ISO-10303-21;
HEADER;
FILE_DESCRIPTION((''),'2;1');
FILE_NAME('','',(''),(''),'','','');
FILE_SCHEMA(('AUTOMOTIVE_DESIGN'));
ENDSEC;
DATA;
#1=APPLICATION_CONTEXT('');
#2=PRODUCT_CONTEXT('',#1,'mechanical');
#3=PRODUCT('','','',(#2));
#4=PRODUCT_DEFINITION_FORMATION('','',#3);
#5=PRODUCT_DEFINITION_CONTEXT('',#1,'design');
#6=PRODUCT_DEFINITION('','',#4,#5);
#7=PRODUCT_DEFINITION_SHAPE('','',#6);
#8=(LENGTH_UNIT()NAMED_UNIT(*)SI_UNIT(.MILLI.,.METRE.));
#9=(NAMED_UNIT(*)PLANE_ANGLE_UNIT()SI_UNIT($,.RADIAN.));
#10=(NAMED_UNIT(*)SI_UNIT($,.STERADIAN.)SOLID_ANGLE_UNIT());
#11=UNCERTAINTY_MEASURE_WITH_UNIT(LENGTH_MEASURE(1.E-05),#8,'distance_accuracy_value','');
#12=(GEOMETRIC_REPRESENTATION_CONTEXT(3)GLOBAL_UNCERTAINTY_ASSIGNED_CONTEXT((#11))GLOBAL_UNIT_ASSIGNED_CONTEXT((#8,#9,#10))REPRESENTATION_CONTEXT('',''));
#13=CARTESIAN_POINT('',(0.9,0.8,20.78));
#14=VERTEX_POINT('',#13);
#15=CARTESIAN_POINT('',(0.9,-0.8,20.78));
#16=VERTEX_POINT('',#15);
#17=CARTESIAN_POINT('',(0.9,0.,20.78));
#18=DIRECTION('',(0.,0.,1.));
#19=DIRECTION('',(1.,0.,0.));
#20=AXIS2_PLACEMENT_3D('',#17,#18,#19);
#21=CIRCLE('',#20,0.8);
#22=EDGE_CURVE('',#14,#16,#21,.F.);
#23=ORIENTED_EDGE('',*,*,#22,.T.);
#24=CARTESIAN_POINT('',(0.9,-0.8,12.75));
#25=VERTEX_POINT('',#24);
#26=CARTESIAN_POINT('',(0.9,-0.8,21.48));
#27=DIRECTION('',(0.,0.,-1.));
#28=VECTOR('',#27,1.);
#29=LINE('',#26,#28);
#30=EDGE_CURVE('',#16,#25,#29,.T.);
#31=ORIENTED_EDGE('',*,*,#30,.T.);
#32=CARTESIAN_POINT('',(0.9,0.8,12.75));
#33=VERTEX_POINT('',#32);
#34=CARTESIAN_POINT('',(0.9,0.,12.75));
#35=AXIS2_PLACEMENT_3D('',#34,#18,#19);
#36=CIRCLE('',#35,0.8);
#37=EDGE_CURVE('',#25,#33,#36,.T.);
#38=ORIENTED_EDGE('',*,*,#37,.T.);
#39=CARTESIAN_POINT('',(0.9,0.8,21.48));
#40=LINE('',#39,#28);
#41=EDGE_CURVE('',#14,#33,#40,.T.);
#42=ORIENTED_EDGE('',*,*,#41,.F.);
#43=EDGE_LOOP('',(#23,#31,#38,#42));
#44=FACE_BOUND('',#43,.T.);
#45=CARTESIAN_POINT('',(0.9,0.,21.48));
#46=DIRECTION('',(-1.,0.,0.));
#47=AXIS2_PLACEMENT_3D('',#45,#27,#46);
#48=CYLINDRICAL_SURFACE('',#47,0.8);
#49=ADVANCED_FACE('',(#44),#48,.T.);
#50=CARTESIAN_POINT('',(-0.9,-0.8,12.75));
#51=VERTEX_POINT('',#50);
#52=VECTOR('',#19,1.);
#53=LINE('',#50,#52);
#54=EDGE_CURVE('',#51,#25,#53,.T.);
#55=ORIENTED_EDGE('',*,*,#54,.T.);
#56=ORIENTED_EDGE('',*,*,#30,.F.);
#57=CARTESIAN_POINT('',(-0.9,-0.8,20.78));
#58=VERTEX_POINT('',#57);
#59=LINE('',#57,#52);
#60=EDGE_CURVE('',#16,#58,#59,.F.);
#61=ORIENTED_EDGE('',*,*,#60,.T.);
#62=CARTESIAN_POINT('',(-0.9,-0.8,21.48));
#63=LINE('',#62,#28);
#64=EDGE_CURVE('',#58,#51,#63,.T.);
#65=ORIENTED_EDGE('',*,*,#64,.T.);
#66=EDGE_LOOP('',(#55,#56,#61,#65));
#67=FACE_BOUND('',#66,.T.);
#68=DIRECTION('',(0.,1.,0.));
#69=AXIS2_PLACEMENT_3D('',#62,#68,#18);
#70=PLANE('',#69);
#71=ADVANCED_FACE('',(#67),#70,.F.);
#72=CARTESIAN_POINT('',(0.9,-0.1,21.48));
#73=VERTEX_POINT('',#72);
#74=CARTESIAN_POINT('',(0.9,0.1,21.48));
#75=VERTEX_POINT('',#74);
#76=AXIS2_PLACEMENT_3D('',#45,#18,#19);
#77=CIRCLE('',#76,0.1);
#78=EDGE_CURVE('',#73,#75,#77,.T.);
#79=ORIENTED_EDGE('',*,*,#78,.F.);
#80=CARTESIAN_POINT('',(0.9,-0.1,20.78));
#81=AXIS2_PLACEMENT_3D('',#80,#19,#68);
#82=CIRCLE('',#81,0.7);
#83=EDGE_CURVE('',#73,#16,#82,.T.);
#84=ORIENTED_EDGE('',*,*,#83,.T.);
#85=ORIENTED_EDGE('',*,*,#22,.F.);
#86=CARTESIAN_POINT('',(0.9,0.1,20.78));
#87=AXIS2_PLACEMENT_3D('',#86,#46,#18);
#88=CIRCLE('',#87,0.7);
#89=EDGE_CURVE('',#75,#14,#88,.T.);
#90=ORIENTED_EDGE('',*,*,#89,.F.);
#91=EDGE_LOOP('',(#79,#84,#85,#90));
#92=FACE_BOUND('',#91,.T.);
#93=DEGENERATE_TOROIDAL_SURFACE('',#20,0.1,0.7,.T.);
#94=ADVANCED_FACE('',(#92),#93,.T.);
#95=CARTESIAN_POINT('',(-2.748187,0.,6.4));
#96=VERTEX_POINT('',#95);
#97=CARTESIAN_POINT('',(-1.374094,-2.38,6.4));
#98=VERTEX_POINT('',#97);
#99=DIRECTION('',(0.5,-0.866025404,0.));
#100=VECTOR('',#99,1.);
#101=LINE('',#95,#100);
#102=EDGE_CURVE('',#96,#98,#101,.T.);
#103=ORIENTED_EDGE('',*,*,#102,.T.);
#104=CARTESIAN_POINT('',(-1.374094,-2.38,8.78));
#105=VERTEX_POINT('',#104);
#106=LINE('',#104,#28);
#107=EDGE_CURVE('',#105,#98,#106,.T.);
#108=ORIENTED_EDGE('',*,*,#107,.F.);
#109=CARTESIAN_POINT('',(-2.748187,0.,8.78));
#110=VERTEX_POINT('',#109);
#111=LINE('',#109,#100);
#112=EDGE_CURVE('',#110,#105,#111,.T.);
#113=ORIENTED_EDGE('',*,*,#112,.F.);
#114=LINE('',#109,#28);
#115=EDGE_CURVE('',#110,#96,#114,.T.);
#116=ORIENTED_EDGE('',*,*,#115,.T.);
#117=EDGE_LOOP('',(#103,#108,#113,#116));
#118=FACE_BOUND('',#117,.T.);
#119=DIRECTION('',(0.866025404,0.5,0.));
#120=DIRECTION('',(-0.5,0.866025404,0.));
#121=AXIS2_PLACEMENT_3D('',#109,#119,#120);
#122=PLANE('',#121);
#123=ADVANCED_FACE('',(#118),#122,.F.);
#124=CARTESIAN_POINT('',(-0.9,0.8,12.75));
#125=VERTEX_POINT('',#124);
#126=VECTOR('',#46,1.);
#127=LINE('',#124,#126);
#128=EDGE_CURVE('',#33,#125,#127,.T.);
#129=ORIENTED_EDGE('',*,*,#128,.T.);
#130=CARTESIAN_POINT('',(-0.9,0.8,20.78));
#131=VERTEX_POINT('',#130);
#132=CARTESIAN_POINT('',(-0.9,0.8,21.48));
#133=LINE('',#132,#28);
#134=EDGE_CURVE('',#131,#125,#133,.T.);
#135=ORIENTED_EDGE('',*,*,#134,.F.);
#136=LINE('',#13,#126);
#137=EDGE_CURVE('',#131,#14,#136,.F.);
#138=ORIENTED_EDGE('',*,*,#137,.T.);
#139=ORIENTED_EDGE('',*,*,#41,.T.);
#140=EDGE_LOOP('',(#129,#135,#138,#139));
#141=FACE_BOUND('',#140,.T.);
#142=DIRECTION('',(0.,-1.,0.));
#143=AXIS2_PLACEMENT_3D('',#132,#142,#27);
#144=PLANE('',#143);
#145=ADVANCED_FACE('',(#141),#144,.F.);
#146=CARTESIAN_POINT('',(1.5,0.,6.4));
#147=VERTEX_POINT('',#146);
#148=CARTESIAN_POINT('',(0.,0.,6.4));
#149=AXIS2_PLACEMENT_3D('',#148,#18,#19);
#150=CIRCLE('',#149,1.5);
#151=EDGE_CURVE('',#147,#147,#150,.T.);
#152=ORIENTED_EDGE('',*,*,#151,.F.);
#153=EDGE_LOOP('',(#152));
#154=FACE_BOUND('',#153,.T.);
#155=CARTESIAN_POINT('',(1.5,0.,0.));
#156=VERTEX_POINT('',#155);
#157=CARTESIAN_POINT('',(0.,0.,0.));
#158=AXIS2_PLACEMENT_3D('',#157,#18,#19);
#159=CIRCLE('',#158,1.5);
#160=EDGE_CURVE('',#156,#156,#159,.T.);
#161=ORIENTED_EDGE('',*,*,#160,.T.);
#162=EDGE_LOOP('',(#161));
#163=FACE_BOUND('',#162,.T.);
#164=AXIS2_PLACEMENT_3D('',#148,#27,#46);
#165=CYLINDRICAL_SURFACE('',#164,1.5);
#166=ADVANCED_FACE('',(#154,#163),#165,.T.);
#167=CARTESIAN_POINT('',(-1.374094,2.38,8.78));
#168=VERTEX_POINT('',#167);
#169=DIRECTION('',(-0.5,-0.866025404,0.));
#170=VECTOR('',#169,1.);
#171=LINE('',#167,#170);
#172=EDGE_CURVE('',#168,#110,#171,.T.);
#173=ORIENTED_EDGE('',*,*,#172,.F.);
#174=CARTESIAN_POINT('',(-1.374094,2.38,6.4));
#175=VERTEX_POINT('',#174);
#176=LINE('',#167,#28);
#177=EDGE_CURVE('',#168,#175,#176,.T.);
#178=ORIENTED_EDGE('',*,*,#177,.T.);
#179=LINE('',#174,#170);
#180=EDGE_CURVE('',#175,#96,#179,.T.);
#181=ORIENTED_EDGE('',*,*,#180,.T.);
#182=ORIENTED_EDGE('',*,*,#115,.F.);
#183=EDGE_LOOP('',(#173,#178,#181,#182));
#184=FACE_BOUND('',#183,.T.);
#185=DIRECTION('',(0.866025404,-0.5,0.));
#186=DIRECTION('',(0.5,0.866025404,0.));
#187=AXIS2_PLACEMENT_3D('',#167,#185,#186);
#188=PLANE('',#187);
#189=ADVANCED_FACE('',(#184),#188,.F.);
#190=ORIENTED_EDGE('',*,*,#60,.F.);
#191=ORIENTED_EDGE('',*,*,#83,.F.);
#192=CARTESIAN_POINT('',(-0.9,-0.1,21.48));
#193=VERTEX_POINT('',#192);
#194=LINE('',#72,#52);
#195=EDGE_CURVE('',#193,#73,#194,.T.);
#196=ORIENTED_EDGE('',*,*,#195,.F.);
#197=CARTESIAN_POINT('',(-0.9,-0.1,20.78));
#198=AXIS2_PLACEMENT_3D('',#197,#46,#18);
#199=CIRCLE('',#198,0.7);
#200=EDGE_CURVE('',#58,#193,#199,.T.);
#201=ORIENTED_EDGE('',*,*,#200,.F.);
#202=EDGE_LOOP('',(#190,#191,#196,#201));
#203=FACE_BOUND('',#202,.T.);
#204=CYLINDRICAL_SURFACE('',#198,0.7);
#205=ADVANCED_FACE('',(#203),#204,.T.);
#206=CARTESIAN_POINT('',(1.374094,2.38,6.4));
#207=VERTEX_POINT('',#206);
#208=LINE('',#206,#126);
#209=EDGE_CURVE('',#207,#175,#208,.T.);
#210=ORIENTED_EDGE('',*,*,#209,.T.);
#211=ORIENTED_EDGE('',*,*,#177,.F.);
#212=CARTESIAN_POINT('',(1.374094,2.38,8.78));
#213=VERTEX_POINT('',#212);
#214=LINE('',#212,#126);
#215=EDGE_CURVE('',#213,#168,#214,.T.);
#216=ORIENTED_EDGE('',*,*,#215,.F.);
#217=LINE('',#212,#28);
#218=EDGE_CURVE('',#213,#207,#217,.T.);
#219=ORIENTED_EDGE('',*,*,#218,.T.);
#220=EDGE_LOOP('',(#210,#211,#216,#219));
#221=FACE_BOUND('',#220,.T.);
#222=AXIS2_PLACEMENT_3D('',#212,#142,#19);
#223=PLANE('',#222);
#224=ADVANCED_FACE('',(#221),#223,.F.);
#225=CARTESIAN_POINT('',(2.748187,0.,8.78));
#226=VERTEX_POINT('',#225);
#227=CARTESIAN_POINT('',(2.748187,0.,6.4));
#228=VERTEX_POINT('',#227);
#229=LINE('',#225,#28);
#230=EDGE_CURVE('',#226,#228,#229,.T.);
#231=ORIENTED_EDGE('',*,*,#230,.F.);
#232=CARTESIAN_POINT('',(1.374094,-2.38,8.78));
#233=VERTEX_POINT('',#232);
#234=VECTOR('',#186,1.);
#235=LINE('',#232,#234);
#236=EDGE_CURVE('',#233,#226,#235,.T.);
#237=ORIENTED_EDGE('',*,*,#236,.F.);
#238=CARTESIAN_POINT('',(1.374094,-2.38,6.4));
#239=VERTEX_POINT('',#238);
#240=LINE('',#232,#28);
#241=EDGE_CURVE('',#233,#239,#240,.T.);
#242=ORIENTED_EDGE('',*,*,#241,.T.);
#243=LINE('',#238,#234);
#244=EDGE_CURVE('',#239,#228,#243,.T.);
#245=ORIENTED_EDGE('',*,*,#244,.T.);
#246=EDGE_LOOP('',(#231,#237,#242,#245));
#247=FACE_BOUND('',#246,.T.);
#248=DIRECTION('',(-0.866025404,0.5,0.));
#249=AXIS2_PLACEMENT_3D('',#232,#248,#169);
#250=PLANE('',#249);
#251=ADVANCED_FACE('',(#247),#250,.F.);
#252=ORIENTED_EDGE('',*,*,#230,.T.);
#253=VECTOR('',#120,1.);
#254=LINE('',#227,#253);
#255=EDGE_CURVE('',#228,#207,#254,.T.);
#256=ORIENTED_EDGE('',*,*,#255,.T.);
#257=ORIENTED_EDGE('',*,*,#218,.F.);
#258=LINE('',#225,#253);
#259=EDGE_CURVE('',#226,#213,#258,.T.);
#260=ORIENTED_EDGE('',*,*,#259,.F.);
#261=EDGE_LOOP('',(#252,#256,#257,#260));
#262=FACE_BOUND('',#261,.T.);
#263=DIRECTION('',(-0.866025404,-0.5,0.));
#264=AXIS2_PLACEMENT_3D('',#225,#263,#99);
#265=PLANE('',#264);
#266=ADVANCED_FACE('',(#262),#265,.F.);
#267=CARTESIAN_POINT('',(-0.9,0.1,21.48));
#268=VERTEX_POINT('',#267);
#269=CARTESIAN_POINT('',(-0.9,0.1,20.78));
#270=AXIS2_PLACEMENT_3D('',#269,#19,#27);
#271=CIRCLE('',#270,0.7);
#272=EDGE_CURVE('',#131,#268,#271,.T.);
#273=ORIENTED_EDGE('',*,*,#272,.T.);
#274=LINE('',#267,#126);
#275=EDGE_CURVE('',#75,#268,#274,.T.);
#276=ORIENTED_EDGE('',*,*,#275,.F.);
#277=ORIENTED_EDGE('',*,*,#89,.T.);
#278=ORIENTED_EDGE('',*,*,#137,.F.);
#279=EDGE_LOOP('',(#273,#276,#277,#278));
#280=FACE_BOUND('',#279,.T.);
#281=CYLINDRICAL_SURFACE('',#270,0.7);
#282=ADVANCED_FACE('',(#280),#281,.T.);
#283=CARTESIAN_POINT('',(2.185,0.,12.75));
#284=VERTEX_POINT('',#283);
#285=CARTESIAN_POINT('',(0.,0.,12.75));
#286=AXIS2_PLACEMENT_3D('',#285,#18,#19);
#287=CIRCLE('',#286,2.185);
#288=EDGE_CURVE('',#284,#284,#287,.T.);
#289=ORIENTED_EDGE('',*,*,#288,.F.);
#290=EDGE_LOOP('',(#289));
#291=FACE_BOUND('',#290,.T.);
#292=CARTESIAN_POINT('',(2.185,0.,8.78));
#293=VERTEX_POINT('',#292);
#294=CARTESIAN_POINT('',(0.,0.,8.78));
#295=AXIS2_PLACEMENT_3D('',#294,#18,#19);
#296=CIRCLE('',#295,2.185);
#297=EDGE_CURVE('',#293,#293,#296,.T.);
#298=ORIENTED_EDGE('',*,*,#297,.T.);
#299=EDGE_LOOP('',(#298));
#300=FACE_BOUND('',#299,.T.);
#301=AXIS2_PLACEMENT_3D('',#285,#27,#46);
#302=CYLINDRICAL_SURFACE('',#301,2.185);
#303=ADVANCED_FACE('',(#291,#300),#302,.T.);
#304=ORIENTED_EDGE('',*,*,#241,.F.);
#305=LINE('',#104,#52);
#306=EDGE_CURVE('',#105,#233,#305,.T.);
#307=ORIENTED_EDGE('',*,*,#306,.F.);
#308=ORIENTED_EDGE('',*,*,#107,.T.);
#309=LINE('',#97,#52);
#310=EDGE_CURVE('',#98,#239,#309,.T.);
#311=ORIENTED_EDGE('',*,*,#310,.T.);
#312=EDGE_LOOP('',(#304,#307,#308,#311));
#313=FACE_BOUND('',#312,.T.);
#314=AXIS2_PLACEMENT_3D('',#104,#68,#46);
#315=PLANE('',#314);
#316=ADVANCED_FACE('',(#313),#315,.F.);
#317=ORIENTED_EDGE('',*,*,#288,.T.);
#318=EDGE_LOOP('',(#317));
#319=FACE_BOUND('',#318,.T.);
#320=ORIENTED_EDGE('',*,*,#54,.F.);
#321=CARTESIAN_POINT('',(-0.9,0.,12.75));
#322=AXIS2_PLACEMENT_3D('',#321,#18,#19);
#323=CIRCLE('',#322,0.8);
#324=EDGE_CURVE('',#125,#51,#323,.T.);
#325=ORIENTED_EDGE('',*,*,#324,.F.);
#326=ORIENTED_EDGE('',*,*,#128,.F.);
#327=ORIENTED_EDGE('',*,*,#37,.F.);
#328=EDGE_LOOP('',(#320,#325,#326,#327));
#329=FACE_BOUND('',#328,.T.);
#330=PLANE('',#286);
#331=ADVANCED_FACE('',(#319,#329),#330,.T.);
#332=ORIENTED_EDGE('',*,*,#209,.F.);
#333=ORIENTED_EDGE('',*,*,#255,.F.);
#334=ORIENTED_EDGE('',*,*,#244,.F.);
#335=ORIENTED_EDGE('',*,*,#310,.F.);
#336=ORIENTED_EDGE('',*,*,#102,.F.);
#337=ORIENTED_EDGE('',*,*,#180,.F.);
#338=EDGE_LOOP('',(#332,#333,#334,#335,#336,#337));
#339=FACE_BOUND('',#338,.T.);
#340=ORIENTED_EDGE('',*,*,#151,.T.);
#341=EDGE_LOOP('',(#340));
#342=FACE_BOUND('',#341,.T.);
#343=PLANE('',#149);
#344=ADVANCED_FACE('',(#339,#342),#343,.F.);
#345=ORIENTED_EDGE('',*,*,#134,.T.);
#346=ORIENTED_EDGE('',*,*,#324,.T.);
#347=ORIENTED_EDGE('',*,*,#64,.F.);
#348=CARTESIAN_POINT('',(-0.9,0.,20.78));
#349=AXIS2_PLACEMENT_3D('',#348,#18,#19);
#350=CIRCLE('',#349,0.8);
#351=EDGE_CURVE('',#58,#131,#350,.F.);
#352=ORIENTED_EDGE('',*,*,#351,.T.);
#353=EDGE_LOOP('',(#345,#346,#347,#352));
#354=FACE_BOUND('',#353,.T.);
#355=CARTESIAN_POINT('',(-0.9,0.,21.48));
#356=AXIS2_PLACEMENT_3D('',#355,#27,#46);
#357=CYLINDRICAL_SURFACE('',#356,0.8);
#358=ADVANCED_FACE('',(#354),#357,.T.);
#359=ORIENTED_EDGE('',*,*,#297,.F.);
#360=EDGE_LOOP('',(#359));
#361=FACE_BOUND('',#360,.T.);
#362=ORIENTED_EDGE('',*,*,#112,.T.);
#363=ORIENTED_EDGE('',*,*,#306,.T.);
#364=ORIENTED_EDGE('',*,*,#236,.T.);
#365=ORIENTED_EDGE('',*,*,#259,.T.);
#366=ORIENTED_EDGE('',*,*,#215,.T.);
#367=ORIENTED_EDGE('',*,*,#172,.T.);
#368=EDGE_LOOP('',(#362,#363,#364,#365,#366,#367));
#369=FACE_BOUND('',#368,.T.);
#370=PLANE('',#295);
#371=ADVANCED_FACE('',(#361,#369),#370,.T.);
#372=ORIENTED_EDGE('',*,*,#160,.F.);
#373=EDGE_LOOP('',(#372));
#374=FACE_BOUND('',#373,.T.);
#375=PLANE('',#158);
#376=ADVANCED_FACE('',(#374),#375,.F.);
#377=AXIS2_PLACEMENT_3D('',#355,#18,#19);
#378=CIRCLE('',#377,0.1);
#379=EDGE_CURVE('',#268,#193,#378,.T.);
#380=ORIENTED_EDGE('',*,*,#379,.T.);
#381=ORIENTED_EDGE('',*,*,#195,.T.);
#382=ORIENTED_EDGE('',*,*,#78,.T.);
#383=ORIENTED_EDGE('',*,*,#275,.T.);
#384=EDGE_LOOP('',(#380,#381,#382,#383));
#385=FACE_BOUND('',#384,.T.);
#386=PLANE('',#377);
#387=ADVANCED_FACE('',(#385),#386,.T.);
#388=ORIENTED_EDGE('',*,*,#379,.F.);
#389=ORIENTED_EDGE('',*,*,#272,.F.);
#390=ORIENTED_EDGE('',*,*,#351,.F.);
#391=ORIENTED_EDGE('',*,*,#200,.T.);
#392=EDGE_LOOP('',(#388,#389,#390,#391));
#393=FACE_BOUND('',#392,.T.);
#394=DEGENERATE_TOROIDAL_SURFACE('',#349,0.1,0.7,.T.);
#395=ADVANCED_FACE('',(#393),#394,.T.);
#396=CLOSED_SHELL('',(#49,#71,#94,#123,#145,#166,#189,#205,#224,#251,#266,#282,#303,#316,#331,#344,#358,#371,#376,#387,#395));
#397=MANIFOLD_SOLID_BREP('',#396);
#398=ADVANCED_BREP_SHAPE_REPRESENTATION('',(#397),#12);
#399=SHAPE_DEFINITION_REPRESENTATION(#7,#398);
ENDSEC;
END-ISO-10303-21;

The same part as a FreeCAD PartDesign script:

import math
import FreeCAD as App
import Part
import Sketcher
Q = App.Units.Quantity


def edges_at(feature, points):
    """Names of the edges that pass closest to the given points."""
    edges = feature.Shape.Edges
    near = lambda p: min(range(len(edges)), key=lambda i: edges[i].distToShape(Part.Vertex(*p))[0])
    return sorted({f"Edge{near(p) + 1}" for p in points})

doc = App.newDocument("Part")
params = doc.addObject("Spreadsheet::Sheet", "Params")
for row, (alias, value) in enumerate([
    ("sketch1_diameter", "3 mm"),
    ("pad1_length", "6.4 mm"),
    ("pad2_length", "2.38 mm"),
    ("sketch3_diameter", "4.37 mm"),
    ("pad3_length", "3.97 mm"),
    ("sketch4_radius", "0.8 mm"),
    ("sketch4_width", "1.8 mm"),
    ("pad4_length", "8.73 mm"),
    ("fillet_radius", "0.7 mm"),
], start=1):
    params.set(f"A{row}", alias)
    params.set(f"B{row}", "=" + value)
    params.setAlias(f"B{row}", alias)

body = doc.addObject("PartDesign::Body", "Body")

# Sketch on XY plane
sketch1 = body.newObject("Sketcher::SketchObject", "Sketch")
sketch1.AttachmentSupport = (doc.getObject("XY_Plane"), [""])
sketch1.MapMode = "FlatFace"
sketch1.addGeometry(Part.Circle(App.Vector(0, 0, 0), App.Vector(0, 0, 1), 1.5), False)
sketch1.addConstraint([
    Sketcher.Constraint("Coincident", 0, 3, -1, 1),
    Sketcher.Constraint("Diameter", 0, Q("3 mm")),
])
sketch1.setExpression("Constraints[1]", "Params.sketch1_diameter")
pad1 = body.newObject("PartDesign::Pad", "Pad")
pad1.Profile = sketch1
pad1.setExpression("Length", "Params.pad1_length")

# Sketch on XY plane
sketch2 = body.newObject("Sketcher::SketchObject", "Sketch001")
sketch2.AttachmentSupport = (doc.getObject("XY_Plane"), [""])
sketch2.MapMode = "FlatFace"
sketch2.AttachmentOffset = App.Placement(App.Vector(0, 0, 6.4), App.Rotation())
sketch2.addGeometry([
    Part.LineSegment(App.Vector(1.4, -2.4, 0), App.Vector(2.7, 0, 0)),  # 0
    Part.LineSegment(App.Vector(2.7, 0, 0), App.Vector(1.4, 2.4, 0)),  # 1
    Part.LineSegment(App.Vector(1.4, 2.4, 0), App.Vector(-1.4, 2.4, 0)),  # 2
    Part.LineSegment(App.Vector(-1.4, 2.4, 0), App.Vector(-2.7, 0, 0)),  # 3
    Part.LineSegment(App.Vector(-2.7, 0, 0), App.Vector(-1.4, -2.4, 0)),  # 4
    Part.LineSegment(App.Vector(-1.4, -2.4, 0), App.Vector(1.4, -2.4, 0)),  # 5
], False)
sketch2.addConstraint([
    Sketcher.Constraint("Coincident", 0, 2, 1, 1),
    Sketcher.Constraint("Coincident", 1, 2, 2, 1),
    Sketcher.Constraint("Coincident", 2, 2, 3, 1),
    Sketcher.Constraint("Coincident", 3, 2, 4, 1),
    Sketcher.Constraint("Coincident", 4, 2, 5, 1),
    Sketcher.Constraint("Coincident", 5, 2, 0, 1),
    Sketcher.Constraint("Horizontal", 2),
    Sketcher.Constraint("Horizontal", 5),
    Sketcher.Constraint("Symmetric", 0, 2, 3, 2, -1, 1),
    Sketcher.Constraint("Symmetric", 1, 2, 4, 2, -1, 1),
    Sketcher.Constraint("PointOnObject", 0, 2, -1),
    Sketcher.Constraint("Parallel", 0, 3),
    Sketcher.Constraint("Vertical", 2, 2, 4, 2),
    Sketcher.Constraint("Angle", 0, Q("60 deg")),
    Sketcher.Constraint("DistanceY", -1, 1, 1, 2, Q("2.38 mm")),
    Sketcher.Constraint("DistanceX", 2, 2, 2, 1, Q("2.748187 mm")),
])
pad2 = body.newObject("PartDesign::Pad", "Pad001")
pad2.Profile = sketch2
pad2.setExpression("Length", "Params.pad2_length")

# Sketch on XY plane
sketch3 = body.newObject("Sketcher::SketchObject", "Sketch002")
sketch3.AttachmentSupport = (doc.getObject("XY_Plane"), [""])
sketch3.MapMode = "FlatFace"
sketch3.AttachmentOffset = App.Placement(App.Vector(0, 0, 8.78), App.Rotation())
sketch3.addGeometry(Part.Circle(App.Vector(0, 0, 0), App.Vector(0, 0, 1), 2.2), False)
sketch3.addConstraint([
    Sketcher.Constraint("Coincident", 0, 3, -1, 1),
    Sketcher.Constraint("Diameter", 0, Q("4.37 mm")),
])
sketch3.setExpression("Constraints[1]", "Params.sketch3_diameter")
pad3 = body.newObject("PartDesign::Pad", "Pad002")
pad3.Profile = sketch3
pad3.setExpression("Length", "Params.pad3_length")

# Sketch on XY plane
sketch4 = body.newObject("Sketcher::SketchObject", "Sketch003")
sketch4.AttachmentSupport = (doc.getObject("XY_Plane"), [""])
sketch4.MapMode = "FlatFace"
sketch4.AttachmentOffset = App.Placement(App.Vector(0, 0, 12.75), App.Rotation())
sketch4.addGeometry([
    Part.LineSegment(App.Vector(0.9, 0.8, 0), App.Vector(-0.9, 0.8, 0)),
    Part.ArcOfCircle(Part.Circle(App.Vector(-0.9, 0, 0), App.Vector(0, 0, 1), 0.8), math.radians(90), math.radians(270)),
    Part.LineSegment(App.Vector(-0.9, -0.8, 0), App.Vector(0.9, -0.8, 0)),
    Part.ArcOfCircle(Part.Circle(App.Vector(0.9, 0, 0), App.Vector(0, 0, 1), 0.8), math.radians(-90), math.radians(90)),
], False)
sketch4.addConstraint([
    Sketcher.Constraint("Tangent", 0, 2, 1, 1),
    Sketcher.Constraint("Tangent", 1, 2, 2, 1),
    Sketcher.Constraint("Tangent", 2, 2, 3, 1),
    Sketcher.Constraint("Tangent", 3, 2, 0, 1),
    Sketcher.Constraint("Horizontal", 0),
    Sketcher.Constraint("Horizontal", 2),
    Sketcher.Constraint("Symmetric", 1, 3, 3, 3, -1, 1),
    Sketcher.Constraint("Radius", 1, Q("0.8 mm")),
    Sketcher.Constraint("DistanceX", 0, 2, 0, 1, Q("1.8 mm")),
])
sketch4.setExpression("Constraints[7]", "Params.sketch4_radius")
sketch4.setExpression("Constraints[8]", "Params.sketch4_width")
pad4 = body.newObject("PartDesign::Pad", "Pad003")
pad4.Profile = sketch4
pad4.setExpression("Length", "Params.pad4_length")
doc.recompute()

fillet = body.newObject("PartDesign::Fillet", "Fillet")
fillet.Base = (pad4, edges_at(pad4, [
    (-1.7, 0, 21.48),
    (0, -0.8, 21.48),
    (1.7, 0, 21.48),
    (0, 0.8, 21.48),
]))
fillet.setExpression("Radius", "Params.fillet_radius")

doc.recompute()
